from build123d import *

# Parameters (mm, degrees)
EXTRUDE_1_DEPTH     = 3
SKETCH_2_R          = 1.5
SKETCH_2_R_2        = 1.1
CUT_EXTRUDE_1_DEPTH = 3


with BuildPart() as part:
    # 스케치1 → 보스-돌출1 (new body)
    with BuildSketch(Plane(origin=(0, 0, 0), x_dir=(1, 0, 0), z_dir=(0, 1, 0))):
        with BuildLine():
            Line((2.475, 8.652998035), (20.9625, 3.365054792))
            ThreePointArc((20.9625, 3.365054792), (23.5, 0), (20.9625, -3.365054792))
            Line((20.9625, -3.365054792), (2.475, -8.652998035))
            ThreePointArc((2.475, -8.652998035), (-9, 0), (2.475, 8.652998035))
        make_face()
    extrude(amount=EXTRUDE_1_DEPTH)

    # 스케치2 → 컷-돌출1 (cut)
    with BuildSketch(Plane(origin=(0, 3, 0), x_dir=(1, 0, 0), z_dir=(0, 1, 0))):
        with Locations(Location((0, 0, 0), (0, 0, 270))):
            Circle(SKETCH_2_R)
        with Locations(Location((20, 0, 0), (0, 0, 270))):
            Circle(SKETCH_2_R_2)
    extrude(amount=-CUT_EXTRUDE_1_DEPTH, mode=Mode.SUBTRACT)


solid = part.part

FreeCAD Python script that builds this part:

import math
import FreeCAD as App
import Part
import Sketcher
from FreeCAD import Vector

doc = App.newDocument("Part")
params = doc.addObject("Spreadsheet::Sheet", "Params")
for row, (alias, value) in enumerate([
    ("sketch1_radius", "9 mm"),
    ("sketch1_radius2", "3.5 mm"),
    ("pad1_length", "3 mm"),
    ("sketch2_diameter", "3 mm"),
    ("sketch2_diameter2", "2.2 mm"),
    ("pocket1_length", "3 mm"),
], start=1):
    params.set(f"A{row}", alias)
    params.set(f"B{row}", "=" + value)
    params.setAlias(f"B{row}", alias)

body = doc.addObject("PartDesign::Body", "Body")

sketch1 = body.newObject("Sketcher::SketchObject", "Sketch")
sketch1.AttachmentSupport = (doc.getObject("XZ_Plane"), [""])
sketch1.MapMode = "FlatFace"
sketch1.addGeometry(Part.LineSegment(Vector(20.9625, -3.365055, 0), Vector(2.475, -8.652998, 0)), False)
sketch1.addGeometry(Part.ArcOfCircle(Part.Circle(Vector(0, 0, 0), Vector(0, 0, 1), 9), math.radians(74.037986), math.radians(285.962014)), False)
sketch1.addGeometry(Part.LineSegment(Vector(2.475, 8.652998, 0), Vector(20.9625, 3.365055, 0)), False)
sketch1.addGeometry(Part.ArcOfCircle(Part.Circle(Vector(20, 0, 0), Vector(0, 0, 1), 3.5), math.radians(-74.037986), math.radians(74.037986)), False)
sketch1.addConstraint(Sketcher.Constraint("Tangent", 0, 2, 1, 2))
sketch1.addConstraint(Sketcher.Constraint("Tangent", 1, 1, 2, 1))
sketch1.addConstraint(Sketcher.Constraint("Tangent", 2, 2, 3, 2))
sketch1.addConstraint(Sketcher.Constraint("Tangent", 3, 1, 0, 1))
sketch1.addConstraint(Sketcher.Constraint("Coincident", 1, 3, -1, 1))
sketch1.addConstraint(Sketcher.Constraint("PointOnObject", 3, 3, -1))
sketch1.addConstraint(Sketcher.Constraint("Radius", 1, 9.0))
sketch1.addConstraint(Sketcher.Constraint("Radius", 3, 3.5))
sketch1.addConstraint(Sketcher.Constraint("DistanceX", -1, 1, 3, 3, 20.0))
sketch1.setExpression("Constraints[6]", "Params.sketch1_radius")
sketch1.setExpression("Constraints[7]", "Params.sketch1_radius2")
pad1 = body.newObject("PartDesign::Pad", "Pad")
pad1.Profile = sketch1
pad1.setExpression("Length", "Params.pad1_length")
pad1.Reversed = True

sketch2 = body.newObject("Sketcher::SketchObject", "Sketch001")
sketch2.AttachmentSupport = (doc.getObject("XZ_Plane"), [""])
sketch2.MapMode = "FlatFace"
sketch2.AttachmentOffset = App.Placement(Vector(0, 0, -3), App.Rotation())
sketch2.addGeometry(Part.Circle(Vector(0, 0, 0), Vector(0, 0, 1), 1.5), False)
sketch2.addGeometry(Part.Circle(Vector(20, 0, 0), Vector(0, 0, 1), 1.1), False)
sketch2.addConstraint(Sketcher.Constraint("Coincident", 0, 3, -1, 1))
sketch2.addConstraint(Sketcher.Constraint("PointOnObject", 1, 3, -1))
sketch2.addConstraint(Sketcher.Constraint("Diameter", 0, 3.0))
sketch2.addConstraint(Sketcher.Constraint("Diameter", 1, 2.2))
sketch2.addConstraint(Sketcher.Constraint("DistanceX", -1, 1, 1, 3, 20.0))
sketch2.setExpression("Constraints[2]", "Params.sketch2_diameter")
sketch2.setExpression("Constraints[3]", "Params.sketch2_diameter2")
pocket1 = body.newObject("PartDesign::Pocket", "Pocket")
pocket1.Profile = sketch2
pocket1.setExpression("Length", "Params.pocket1_length")
pocket1.Reversed = True

doc.recompute()
